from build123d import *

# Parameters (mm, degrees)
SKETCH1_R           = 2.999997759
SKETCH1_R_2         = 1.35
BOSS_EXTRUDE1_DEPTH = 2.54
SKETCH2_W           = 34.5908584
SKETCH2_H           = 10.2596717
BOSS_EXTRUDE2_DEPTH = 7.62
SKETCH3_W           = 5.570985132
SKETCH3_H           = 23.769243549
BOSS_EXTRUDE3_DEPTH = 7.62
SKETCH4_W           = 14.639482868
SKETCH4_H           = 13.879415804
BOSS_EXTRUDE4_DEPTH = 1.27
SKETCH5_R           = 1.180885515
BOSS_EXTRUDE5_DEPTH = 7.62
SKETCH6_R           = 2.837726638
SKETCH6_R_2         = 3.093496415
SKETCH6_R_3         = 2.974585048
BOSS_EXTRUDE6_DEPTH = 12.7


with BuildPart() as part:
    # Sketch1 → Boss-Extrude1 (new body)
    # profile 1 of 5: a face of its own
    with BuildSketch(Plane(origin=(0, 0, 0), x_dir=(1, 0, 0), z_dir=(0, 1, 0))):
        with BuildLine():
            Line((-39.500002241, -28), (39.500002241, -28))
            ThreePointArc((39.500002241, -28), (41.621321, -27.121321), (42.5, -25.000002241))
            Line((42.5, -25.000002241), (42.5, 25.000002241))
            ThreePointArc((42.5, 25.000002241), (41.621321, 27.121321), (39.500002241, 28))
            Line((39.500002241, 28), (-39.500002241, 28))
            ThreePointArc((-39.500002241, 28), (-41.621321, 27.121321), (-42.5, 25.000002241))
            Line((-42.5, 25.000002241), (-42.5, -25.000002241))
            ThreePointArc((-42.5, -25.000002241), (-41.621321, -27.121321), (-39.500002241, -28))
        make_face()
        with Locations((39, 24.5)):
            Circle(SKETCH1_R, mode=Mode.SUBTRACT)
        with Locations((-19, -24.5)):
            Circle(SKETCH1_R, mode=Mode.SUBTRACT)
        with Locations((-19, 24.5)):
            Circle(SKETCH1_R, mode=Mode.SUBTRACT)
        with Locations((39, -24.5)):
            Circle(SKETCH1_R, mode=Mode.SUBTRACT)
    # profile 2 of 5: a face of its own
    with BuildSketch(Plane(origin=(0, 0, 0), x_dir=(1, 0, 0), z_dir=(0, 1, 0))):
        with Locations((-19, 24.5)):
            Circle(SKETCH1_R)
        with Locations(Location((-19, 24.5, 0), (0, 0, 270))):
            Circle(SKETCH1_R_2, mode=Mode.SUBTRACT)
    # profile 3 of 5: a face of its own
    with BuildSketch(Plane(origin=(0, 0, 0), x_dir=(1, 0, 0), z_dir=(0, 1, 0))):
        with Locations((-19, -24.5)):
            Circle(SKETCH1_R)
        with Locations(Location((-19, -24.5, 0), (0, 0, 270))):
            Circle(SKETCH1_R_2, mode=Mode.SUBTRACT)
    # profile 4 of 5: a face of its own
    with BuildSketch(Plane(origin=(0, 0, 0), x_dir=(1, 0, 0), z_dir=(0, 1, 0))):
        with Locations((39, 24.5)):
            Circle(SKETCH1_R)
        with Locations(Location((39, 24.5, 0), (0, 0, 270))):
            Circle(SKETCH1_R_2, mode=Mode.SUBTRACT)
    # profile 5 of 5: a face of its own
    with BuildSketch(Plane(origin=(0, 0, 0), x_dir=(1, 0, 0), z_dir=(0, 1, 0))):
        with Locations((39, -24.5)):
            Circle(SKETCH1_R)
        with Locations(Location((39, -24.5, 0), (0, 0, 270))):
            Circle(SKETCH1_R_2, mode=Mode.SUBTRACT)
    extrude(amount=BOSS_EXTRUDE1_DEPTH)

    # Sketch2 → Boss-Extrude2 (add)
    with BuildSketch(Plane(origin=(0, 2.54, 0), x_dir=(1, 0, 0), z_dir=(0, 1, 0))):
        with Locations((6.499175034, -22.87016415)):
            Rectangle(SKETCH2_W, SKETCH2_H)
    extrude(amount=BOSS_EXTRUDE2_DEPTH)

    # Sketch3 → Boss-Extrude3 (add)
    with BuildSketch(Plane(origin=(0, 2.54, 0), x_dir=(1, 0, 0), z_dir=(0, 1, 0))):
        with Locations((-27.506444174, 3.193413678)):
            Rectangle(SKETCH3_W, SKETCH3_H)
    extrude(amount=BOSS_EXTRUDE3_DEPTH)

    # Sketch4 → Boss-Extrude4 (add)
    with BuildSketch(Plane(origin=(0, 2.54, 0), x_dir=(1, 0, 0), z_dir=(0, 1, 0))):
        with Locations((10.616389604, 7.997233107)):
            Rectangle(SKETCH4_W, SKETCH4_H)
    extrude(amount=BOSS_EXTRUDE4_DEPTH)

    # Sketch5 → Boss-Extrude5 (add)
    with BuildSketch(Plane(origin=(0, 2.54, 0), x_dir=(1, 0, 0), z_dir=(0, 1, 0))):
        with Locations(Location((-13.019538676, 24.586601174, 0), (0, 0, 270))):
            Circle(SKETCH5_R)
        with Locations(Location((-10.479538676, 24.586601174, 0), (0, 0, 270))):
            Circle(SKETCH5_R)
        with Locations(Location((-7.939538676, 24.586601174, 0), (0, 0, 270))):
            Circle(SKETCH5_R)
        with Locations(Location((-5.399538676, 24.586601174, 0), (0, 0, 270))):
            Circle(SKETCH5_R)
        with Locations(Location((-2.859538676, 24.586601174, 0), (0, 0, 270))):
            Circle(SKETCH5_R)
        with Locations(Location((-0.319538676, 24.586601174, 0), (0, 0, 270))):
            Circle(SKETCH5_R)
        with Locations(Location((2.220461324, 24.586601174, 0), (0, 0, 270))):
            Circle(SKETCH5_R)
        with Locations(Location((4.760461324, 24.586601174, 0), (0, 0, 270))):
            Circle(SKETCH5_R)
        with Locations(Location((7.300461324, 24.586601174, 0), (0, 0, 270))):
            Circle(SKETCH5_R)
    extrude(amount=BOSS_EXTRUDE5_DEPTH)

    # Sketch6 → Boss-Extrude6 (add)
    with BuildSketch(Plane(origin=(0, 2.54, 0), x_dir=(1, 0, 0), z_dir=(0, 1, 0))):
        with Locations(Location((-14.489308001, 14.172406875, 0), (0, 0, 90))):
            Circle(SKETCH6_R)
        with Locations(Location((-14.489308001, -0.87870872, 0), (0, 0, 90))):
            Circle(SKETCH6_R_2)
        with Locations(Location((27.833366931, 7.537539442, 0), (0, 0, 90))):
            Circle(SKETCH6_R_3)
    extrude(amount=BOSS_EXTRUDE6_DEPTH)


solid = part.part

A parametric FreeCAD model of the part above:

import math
import FreeCAD as App
import Part
import Sketcher
from FreeCAD import Vector
Q = App.Units.Quantity


def add_polygon(sketch, points):
    """Adds a closed chain of lines whose ends are joined by coincident constraints."""
    first, n = sketch.GeometryCount, len(points)
    for a, b in zip(points, points[1:] + points[:1]):
        sketch.addGeometry(Part.LineSegment(App.Vector(*a, 0), App.Vector(*b, 0)), False)
    for i in range(n):
        sketch.addConstraint(Sketcher.Constraint("Coincident", first + i, 2, first + (i + 1) % n, 1))

doc = App.newDocument("Part")
body = doc.addObject("PartDesign::Body", "Body")

# Sketch on XZ plane
sketch1 = body.newObject("Sketcher::SketchObject", "Sketch")
sketch1.AttachmentSupport = (doc.getObject("XZ_Plane"), [""])
sketch1.MapMode = "FlatFace"
sketch1.addGeometry([
    Part.LineSegment(Vector(-39.500002, 28, 0), Vector(39.500002, 28, 0)),  # 0
    Part.ArcOfCircle(Part.Circle(Vector(39.500002, 25.000002, 0), Vector(0, 0, 1), 2.999998), math.radians(0), math.radians(90)),  # 1
    Part.LineSegment(Vector(42.5, 25.000002, 0), Vector(42.5, -25.000002, 0)),  # 2
    Part.ArcOfCircle(Part.Circle(Vector(39.500002, -25.000002, 0), Vector(0, 0, 1), 2.999998), math.radians(-90), math.radians(0)),  # 3
    Part.LineSegment(Vector(39.500002, -28, 0), Vector(-39.500002, -28, 0)),  # 4
    Part.ArcOfCircle(Part.Circle(Vector(-39.500002, -25.000002, 0), Vector(0, 0, 1), 2.999998), math.radians(180), math.radians(270)),  # 5
    Part.LineSegment(Vector(-42.5, -25.000002, 0), Vector(-42.5, 25.000002, 0)),  # 6
    Part.ArcOfCircle(Part.Circle(Vector(-39.500002, 25.000002, 0), Vector(0, 0, 1), 2.999998), math.radians(90), math.radians(180)),  # 7
    Part.Circle(Vector(-19, 24.5, 0), Vector(0, 0, 1), 1.35),  # 8
    Part.Circle(Vector(39, 24.5, 0), Vector(0, 0, 1), 1.35),  # 9
    Part.Circle(Vector(-19, -24.5, 0), Vector(0, 0, 1), 1.35),  # 10
    Part.Circle(Vector(39, -24.5, 0), Vector(0, 0, 1), 1.35),  # 11
], False)
sketch1.addConstraint([
    Sketcher.Constraint("Tangent", 0, 2, 1, 2),
    Sketcher.Constraint("Tangent", 1, 1, 2, 1),
    Sketcher.Constraint("Tangent", 2, 2, 3, 2),
    Sketcher.Constraint("Tangent", 3, 1, 4, 1),
    Sketcher.Constraint("Tangent", 4, 2, 5, 2),
    Sketcher.Constraint("Tangent", 5, 1, 6, 1),
    Sketcher.Constraint("Tangent", 6, 2, 7, 2),
    Sketcher.Constraint("Tangent", 7, 1, 0, 1),
    Sketcher.Constraint("Horizontal", 0),
    Sketcher.Constraint("Vertical", 2),
    Sketcher.Constraint("Horizontal", 4),
    Sketcher.Constraint("Vertical", 6),
    Sketcher.Constraint("Equal", 1, 3),
    Sketcher.Constraint("Equal", 3, 5),
    Sketcher.Constraint("Equal", 5, 7),
    Sketcher.Constraint("Equal", 8, 9),
    Sketcher.Constraint("Equal", 9, 10),
    Sketcher.Constraint("Equal", 10, 11),
    Sketcher.Constraint("Symmetric", 1, 3, 5, 3, -1, 1),
    Sketcher.Constraint("Symmetric", 8, 3, 10, 3, -1),
    Sketcher.Constraint("Symmetric", 9, 3, 11, 3, -1),
    Sketcher.Constraint("Horizontal", 8, 3, 9, 3),
    Sketcher.Constraint("Diameter", 8, Q("2.7 mm")),
    Sketcher.Constraint("Radius", 1, Q("2.999998 mm")),
    Sketcher.Constraint("DistanceX", 8, 3, -1, 1, Q("19 mm")),
    Sketcher.Constraint("DistanceY", -1, 1, 8, 3, Q("24.5 mm")),
    Sketcher.Constraint("DistanceX", -1, 1, 9, 3, Q("39 mm")),
    Sketcher.Constraint("DistanceY", -1, 1, 0, 2, Q("28 mm")),
    Sketcher.Constraint("DistanceX", -1, 1, 1, 1, Q("42.5 mm")),
])
pad1 = body.newObject("PartDesign::Pad", "Pad")
pad1.Profile = sketch1
pad1.Length = Q("0.1 in")
pad1.Reversed = True

# Sketch on XZ plane
sketch2 = body.newObject("Sketcher::SketchObject", "Sketch001")
sketch2.AttachmentSupport = (doc.getObject("XZ_Plane"), [""])
sketch2.MapMode = "FlatFace"
sketch2.AttachmentOffset = App.Placement(Vector(0, 0, -0.1 * 25.4), App.Rotation())
add_polygon(sketch2, [(-10.796254, 17.740328), (-10.796254, 28), (23.794604, 28), (23.794604, 17.740328)])  # lines 0-3
sketch2.addConstraint([
    Sketcher.Constraint("Vertical", 0),
    Sketcher.Constraint("Horizontal", 1),
    Sketcher.Constraint("Vertical", 2),
    Sketcher.Constraint("Horizontal", 3),
    Sketcher.Constraint("DistanceX", 1, 1, 1, 2, Q("34.590858 mm")),
    Sketcher.Constraint("DistanceY", 0, 1, 0, 2, Q("10.259672 mm")),
    Sketcher.Constraint("DistanceY", -1, 1, 0, 2, Q("28 mm")),
    Sketcher.Constraint("DistanceX", 0, 2, -1, 1, Q("10.796254 mm")),
])
pad2 = body.newObject("PartDesign::Pad", "Pad001")
pad2.Profile = sketch2
pad2.Length = Q("0.3 in")
pad2.Reversed = True

# Sketch on XZ plane
sketch3 = body.newObject("Sketcher::SketchObject", "Sketch002")
sketch3.AttachmentSupport = (doc.getObject("XZ_Plane"), [""])
sketch3.MapMode = "FlatFace"
sketch3.AttachmentOffset = App.Placement(Vector(0, 0, -0.1 * 25.4), App.Rotation())
add_polygon(sketch3, [(-30.291937, -15.078035), (-30.291937, 8.691208), (-24.720952, 8.691208), (-24.720952, -15.078035)])  # lines 0-3
sketch3.addConstraint([
    Sketcher.Constraint("Vertical", 0),
    Sketcher.Constraint("Horizontal", 1),
    Sketcher.Constraint("Vertical", 2),
    Sketcher.Constraint("Horizontal", 3),
    Sketcher.Constraint("DistanceX", 1, 1, 1, 2, Q("5.570985 mm")),
    Sketcher.Constraint("DistanceY", 0, 1, 0, 2, Q("23.769244 mm")),
    Sketcher.Constraint("DistanceY", -1, 1, 0, 2, Q("8.691208 mm")),
    Sketcher.Constraint("DistanceX", 1, 2, -1, 1, Q("24.720952 mm")),
])
pad3 = body.newObject("PartDesign::Pad", "Pad002")
pad3.Profile = sketch3
pad3.Length = Q("0.3 in")
pad3.Reversed = True

# Sketch on XZ plane
sketch4 = body.newObject("Sketcher::SketchObject", "Sketch003")
sketch4.AttachmentSupport = (doc.getObject("XZ_Plane"), [""])
sketch4.MapMode = "FlatFace"
sketch4.AttachmentOffset = App.Placement(Vector(0, 0, -0.1 * 25.4), App.Rotation())
add_polygon(sketch4, [(3.296648, -14.936941), (3.296648, -1.057525), (17.936131, -1.057525), (17.936131, -14.936941)])  # lines 0-3
sketch4.addConstraint([
    Sketcher.Constraint("Vertical", 0),
    Sketcher.Constraint("Horizontal", 1),
    Sketcher.Constraint("Vertical", 2),
    Sketcher.Constraint("Horizontal", 3),
    Sketcher.Constraint("DistanceX", 1, 1, 1, 2, Q("14.639483 mm")),
    Sketcher.Constraint("DistanceY", 0, 1, 0, 2, Q("13.879416 mm")),
    Sketcher.Constraint("DistanceX", -1, 1, 0, 2, Q("3.296648 mm")),
    Sketcher.Constraint("DistanceY", 2, 2, -1, 1, Q("14.936941 mm")),
])
pad4 = body.newObject("PartDesign::Pad", "Pad003")
pad4.Profile = sketch4
pad4.Length = Q("0.05 in")
pad4.Reversed = True

# Sketch on XZ plane
sketch5 = body.newObject("Sketcher::SketchObject", "Sketch004")
sketch5.AttachmentSupport = (doc.getObject("XZ_Plane"), [""])
sketch5.MapMode = "FlatFace"
sketch5.AttachmentOffset = App.Placement(Vector(0, 0, -0.1 * 25.4), App.Rotation())
sketch5.addGeometry([
    Part.Circle(Vector(-13.019539, -24.586601, 0), Vector(0, 0, 1), 1.180886),  # 0
    Part.Circle(Vector(-10.479539, -24.586601, 0), Vector(0, 0, 1), 1.180886),  # 1
    Part.Circle(Vector(-7.939539, -24.586601, 0), Vector(0, 0, 1), 1.180886),  # 2
    Part.Circle(Vector(-5.399539, -24.586601, 0), Vector(0, 0, 1), 1.180886),  # 3
    Part.Circle(Vector(-2.859539, -24.586601, 0), Vector(0, 0, 1), 1.180886),  # 4
    Part.Circle(Vector(-0.319539, -24.586601, 0), Vector(0, 0, 1), 1.180886),  # 5
    Part.Circle(Vector(2.220461, -24.586601, 0), Vector(0, 0, 1), 1.180886),  # 6
    Part.Circle(Vector(4.760461, -24.586601, 0), Vector(0, 0, 1), 1.180886),  # 7
    Part.Circle(Vector(7.300461, -24.586601, 0), Vector(0, 0, 1), 1.180886),  # 8
], False)
sketch5.addConstraint([
    Sketcher.Constraint("Equal", 0, 1),
    Sketcher.Constraint("Equal", 1, 2),
    Sketcher.Constraint("Equal", 2, 3),
    Sketcher.Constraint("Equal", 3, 4),
    Sketcher.Constraint("Equal", 4, 5),
    Sketcher.Constraint("Equal", 5, 6),
    Sketcher.Constraint("Equal", 6, 7),
    Sketcher.Constraint("Equal", 7, 8),
    Sketcher.Constraint("Horizontal", 0, 3, 1, 3),
    Sketcher.Constraint("Horizontal", 1, 3, 2, 3),
    Sketcher.Constraint("Horizontal", 2, 3, 3, 3),
    Sketcher.Constraint("Horizontal", 3, 3, 4, 3),
    Sketcher.Constraint("Horizontal", 4, 3, 5, 3),
    Sketcher.Constraint("Horizontal", 5, 3, 6, 3),
    Sketcher.Constraint("Horizontal", 6, 3, 7, 3),
    Sketcher.Constraint("Horizontal", 7, 3, 8, 3),
    Sketcher.Constraint("DistanceX", 0, 3, 1, 3, Q("0.1 in")),
    Sketcher.Constraint("DistanceX", 1, 3, 2, 3, Q("0.1 in")),
    Sketcher.Constraint("DistanceX", 2, 3, 3, 3, Q("0.1 in")),
    Sketcher.Constraint("DistanceX", 3, 3, 4, 3, Q("0.1 in")),
    Sketcher.Constraint("DistanceX", 4, 3, 5, 3, Q("0.1 in")),
    Sketcher.Constraint("DistanceX", 5, 3, 6, 3, Q("0.1 in")),
    Sketcher.Constraint("DistanceX", 6, 3, 7, 3, Q("0.1 in")),
    Sketcher.Constraint("DistanceX", 7, 3, 8, 3, Q("0.1 in")),
    Sketcher.Constraint("Diameter", 0, Q("2.361771 mm")),
    Sketcher.Constraint("DistanceY", 0, 3, -1, 1, Q("24.586601 mm")),
    Sketcher.Constraint("DistanceX", 0, 3, -1, 1, Q("13.019539 mm")),
])
pad5 = body.newObject("PartDesign::Pad", "Pad004")
pad5.Profile = sketch5
pad5.Length = Q("0.3 in")
pad5.Reversed = True

# Sketch on XZ plane
sketch6 = body.newObject("Sketcher::SketchObject", "Sketch005")
sketch6.AttachmentSupport = (doc.getObject("XZ_Plane"), [""])
sketch6.MapMode = "FlatFace"
sketch6.AttachmentOffset = App.Placement(Vector(0, 0, -0.1 * 25.4), App.Rotation())
sketch6.addGeometry([
    Part.Circle(Vector(-14.489308, -14.172407, 0), Vector(0, 0, 1), 2.837727),
    Part.Circle(Vector(-14.489308, 0.878709, 0), Vector(0, 0, 1), 3.093496),
    Part.Circle(Vector(27.833367, -7.537539, 0), Vector(0, 0, 1), 2.974585),
], False)
sketch6.addConstraint([
    Sketcher.Constraint("Vertical", 0, 3, 1, 3),
    Sketcher.Constraint("Diameter", 2, Q("5.94917 mm")),
    Sketcher.Constraint("Diameter", 0, Q("5.675453 mm")),
    Sketcher.Constraint("Diameter", 1, Q("6.186993 mm")),
    Sketcher.Constraint("DistanceX", 0, 3, -1, 1, Q("14.489308 mm")),
    Sketcher.Constraint("DistanceY", -1, 1, 1, 3, Q("0.878709 mm")),
    Sketcher.Constraint("DistanceY", 2, 3, -1, 1, Q("7.537539 mm")),
    Sketcher.Constraint("DistanceY", 0, 3, -1, 1, Q("14.172407 mm")),
    Sketcher.Constraint("DistanceX", -1, 1, 2, 3, Q("27.833367 mm")),
])
pad6 = body.newObject("PartDesign::Pad", "Pad005")
pad6.Profile = sketch6
pad6.Length = Q("0.5 in")
pad6.Reversed = True

doc.recompute()
